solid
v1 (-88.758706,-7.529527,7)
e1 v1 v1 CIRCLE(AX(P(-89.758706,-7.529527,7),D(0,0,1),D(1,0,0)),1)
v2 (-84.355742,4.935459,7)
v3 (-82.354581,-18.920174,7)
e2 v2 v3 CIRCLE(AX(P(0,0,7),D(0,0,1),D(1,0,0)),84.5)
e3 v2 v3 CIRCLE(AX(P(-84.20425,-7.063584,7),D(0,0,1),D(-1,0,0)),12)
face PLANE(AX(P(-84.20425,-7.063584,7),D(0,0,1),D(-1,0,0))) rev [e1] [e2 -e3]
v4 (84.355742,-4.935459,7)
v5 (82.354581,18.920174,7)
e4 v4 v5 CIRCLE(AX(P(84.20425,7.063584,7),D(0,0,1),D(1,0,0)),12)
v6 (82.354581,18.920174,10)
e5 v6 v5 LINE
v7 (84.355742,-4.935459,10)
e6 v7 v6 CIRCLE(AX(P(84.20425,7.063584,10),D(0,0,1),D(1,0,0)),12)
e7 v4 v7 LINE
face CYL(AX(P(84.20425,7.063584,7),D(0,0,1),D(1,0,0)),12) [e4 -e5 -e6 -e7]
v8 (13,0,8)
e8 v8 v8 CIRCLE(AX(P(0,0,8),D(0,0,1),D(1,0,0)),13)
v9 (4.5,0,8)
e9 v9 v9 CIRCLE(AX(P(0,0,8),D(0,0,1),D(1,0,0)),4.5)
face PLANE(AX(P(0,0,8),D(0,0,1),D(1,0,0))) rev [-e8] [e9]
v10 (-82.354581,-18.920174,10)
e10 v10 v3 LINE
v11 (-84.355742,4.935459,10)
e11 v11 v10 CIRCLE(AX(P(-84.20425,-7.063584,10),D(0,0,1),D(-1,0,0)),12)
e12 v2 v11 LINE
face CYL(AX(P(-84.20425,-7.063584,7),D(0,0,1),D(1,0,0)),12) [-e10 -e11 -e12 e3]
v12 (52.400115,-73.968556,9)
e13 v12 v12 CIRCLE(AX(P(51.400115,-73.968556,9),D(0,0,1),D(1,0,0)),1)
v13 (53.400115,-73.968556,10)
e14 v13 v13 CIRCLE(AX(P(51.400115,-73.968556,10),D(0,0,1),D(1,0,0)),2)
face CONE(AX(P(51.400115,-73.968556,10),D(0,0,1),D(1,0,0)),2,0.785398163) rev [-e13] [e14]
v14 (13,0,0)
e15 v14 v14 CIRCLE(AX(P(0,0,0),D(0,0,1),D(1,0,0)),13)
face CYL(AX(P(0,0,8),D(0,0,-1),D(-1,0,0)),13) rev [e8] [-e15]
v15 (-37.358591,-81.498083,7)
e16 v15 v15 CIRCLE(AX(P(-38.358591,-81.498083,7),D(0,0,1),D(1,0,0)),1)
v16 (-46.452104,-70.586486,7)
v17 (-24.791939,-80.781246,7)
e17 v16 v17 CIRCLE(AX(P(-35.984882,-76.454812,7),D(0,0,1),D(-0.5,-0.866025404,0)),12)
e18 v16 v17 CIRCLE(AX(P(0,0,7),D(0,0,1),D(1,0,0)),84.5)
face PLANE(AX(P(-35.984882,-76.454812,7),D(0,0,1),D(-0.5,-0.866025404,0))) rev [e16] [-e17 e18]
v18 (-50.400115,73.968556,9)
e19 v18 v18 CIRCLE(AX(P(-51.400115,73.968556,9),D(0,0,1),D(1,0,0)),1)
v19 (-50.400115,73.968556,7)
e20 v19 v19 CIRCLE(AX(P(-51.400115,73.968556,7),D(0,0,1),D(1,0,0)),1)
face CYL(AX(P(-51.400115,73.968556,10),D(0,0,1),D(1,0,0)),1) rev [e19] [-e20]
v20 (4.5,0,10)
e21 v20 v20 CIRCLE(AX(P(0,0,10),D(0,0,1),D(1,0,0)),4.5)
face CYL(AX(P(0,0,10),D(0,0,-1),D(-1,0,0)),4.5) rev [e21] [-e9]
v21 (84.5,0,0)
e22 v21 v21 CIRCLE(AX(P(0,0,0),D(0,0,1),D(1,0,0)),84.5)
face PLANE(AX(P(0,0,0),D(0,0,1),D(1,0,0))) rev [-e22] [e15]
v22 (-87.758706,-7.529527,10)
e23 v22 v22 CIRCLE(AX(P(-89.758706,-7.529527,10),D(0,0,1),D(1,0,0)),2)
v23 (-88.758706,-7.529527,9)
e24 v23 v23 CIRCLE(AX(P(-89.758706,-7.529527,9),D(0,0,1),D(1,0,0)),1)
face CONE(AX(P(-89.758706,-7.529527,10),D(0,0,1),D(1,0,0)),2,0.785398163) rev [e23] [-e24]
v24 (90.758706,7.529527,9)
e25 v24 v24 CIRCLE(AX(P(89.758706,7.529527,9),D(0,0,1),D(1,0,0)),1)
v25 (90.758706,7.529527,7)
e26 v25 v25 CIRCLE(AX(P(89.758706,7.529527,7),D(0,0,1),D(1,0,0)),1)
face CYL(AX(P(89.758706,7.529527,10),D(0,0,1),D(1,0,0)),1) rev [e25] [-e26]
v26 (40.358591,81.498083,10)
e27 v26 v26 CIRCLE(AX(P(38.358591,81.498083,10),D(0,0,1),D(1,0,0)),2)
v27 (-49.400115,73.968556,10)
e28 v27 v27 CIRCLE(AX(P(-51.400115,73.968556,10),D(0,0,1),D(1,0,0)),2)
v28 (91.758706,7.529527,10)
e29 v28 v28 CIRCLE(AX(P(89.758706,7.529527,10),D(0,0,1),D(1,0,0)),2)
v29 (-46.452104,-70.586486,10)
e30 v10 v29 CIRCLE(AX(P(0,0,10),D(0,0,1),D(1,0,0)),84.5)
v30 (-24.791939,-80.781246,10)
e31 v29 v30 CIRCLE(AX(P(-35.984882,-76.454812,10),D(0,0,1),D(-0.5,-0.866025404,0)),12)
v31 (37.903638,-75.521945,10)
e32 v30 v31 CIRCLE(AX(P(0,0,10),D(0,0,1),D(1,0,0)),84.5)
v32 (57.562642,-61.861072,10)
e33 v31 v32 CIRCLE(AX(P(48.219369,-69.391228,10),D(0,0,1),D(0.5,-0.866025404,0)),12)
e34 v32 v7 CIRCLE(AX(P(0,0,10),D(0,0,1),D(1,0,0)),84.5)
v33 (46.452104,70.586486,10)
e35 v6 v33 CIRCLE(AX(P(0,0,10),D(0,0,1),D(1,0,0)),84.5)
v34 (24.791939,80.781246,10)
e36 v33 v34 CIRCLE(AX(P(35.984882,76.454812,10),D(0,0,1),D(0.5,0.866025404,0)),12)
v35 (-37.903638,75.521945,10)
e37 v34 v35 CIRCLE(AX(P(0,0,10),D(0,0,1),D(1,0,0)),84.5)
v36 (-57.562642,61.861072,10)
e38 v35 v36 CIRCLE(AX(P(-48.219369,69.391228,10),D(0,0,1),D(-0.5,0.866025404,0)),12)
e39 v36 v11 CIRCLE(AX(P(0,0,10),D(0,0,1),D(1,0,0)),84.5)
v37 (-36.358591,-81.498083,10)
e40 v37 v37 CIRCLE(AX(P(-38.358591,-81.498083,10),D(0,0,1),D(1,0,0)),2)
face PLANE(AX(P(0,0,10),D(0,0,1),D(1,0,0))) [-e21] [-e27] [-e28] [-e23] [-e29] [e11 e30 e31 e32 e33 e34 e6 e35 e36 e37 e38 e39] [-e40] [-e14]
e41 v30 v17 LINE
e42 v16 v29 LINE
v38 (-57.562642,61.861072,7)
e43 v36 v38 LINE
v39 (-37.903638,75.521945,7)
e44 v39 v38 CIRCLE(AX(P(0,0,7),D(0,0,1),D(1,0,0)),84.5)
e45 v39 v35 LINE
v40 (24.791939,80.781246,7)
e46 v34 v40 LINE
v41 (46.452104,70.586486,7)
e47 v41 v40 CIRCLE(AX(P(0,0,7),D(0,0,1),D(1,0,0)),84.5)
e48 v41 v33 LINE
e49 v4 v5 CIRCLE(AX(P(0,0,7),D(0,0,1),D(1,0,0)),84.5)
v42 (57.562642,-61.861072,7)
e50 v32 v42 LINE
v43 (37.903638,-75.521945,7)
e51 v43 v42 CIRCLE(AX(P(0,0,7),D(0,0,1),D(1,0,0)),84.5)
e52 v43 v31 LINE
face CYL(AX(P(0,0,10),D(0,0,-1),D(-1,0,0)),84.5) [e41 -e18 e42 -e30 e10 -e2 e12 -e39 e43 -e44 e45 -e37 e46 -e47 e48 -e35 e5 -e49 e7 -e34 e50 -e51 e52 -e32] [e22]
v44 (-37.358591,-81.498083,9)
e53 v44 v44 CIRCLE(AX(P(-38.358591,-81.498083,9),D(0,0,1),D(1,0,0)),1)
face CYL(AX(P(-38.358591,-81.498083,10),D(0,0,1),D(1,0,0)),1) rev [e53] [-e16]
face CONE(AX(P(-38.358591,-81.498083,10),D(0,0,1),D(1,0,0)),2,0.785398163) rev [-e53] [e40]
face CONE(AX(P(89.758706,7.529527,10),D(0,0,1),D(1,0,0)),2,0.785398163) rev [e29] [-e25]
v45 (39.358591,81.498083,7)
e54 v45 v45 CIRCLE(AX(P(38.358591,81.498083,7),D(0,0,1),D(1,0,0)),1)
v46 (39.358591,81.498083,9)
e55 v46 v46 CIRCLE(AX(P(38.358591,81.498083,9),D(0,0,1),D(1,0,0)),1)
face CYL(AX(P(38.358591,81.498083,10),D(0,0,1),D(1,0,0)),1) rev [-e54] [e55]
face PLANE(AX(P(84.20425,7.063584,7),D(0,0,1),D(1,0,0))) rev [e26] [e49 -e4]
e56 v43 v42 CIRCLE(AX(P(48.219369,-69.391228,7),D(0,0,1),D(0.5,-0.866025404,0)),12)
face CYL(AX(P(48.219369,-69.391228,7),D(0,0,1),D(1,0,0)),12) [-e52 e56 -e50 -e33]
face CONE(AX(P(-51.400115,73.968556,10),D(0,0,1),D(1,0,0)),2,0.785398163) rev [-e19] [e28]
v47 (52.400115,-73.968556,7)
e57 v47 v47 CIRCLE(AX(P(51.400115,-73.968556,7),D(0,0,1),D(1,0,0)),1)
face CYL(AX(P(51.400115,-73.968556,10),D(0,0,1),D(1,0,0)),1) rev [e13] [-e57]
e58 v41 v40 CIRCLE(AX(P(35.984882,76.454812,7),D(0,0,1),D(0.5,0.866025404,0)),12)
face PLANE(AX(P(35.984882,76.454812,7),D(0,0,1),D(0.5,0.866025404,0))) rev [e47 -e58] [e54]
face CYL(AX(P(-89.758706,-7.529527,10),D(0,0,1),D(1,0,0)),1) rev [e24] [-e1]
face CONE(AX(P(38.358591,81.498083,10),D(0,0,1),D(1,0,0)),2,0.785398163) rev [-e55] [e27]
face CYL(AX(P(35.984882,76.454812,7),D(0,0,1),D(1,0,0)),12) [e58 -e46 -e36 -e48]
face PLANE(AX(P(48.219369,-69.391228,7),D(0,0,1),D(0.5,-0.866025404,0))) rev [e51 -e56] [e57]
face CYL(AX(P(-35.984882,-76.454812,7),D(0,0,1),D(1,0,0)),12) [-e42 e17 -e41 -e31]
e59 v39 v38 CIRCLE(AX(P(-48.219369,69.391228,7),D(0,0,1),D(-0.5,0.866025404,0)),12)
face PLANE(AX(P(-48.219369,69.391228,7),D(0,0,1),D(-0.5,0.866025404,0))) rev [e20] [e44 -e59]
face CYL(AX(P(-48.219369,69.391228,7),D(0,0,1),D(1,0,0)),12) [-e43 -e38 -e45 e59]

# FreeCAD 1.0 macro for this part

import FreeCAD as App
import Part
import Sketcher
from FreeCAD import Vector
Q = App.Units.Quantity

doc = App.newDocument("Part")
body = doc.addObject("PartDesign::Body", "Body")

# Sketch on XY plane
sketch1 = doc.addObject("Sketcher::SketchObject", "Sketch")
body.addObject(sketch1)
sketch1.AttachmentSupport = (doc.XY_Plane, [""])
sketch1.MapMode = "FlatFace"
sketch1.addGeometry(Part.Circle(Vector(0, 0, 0), Vector(0, 0, 1), 84.5), False)
sketch1.addGeometry(Part.Circle(Vector(0, 0, 0), Vector(0, 0, 1), 4.5), False)
sketch1.addConstraint(Sketcher.Constraint("Coincident", 0, 3, -1, 1))
sketch1.addConstraint(Sketcher.Constraint("Coincident", 1, 3, -1, 1))
sketch1.addConstraint(Sketcher.Constraint("Diameter", 0, Q("169 mm")))
sketch1.addConstraint(Sketcher.Constraint("Diameter", 1, Q("9 mm")))
pad1 = doc.addObject("PartDesign::Pad", "Pad")
body.addObject(pad1)
pad1.Profile = sketch1
pad1.Length = 10

# Sketch on XY plane
sketch2 = doc.addObject("Sketcher::SketchObject", "Sketch001")
body.addObject(sketch2)
sketch2.AttachmentSupport = (doc.XY_Plane, [""])
sketch2.MapMode = "FlatFace"
sketch2.addGeometry(Part.Circle(Vector(0, 0, 0), Vector(0, 0, 1), 13), False)
sketch2.addConstraint(Sketcher.Constraint("Coincident", 0, 3, -1, 1))
sketch2.addConstraint(Sketcher.Constraint("Diameter", 0, Q("26 mm")))
pocket1 = doc.addObject("PartDesign::Pocket", "Pocket")
body.addObject(pocket1)
pocket1.Profile = sketch2
pocket1.Length = 8
pocket1.Reversed = True

# Sketch on XY plane
sketch3 = doc.addObject("Sketcher::SketchObject", "Sketch002")
body.addObject(sketch3)
sketch3.AttachmentSupport = (doc.XY_Plane, [""])
sketch3.MapMode = "FlatFace"
sketch3.AttachmentOffset = App.Placement(Vector(0, 0, 10), App.Rotation())
sketch3.addGeometry(Part.Circle(Vector(84, 7, 0), Vector(0, 0, 1), 12), False)
sketch3.addConstraint(Sketcher.Constraint("Diameter", 0, Q("24 mm")))
sketch3.addConstraint(Sketcher.Constraint("DistanceX", -1, 1, 0, 3, Q("84.20425 mm")))
sketch3.addConstraint(Sketcher.Constraint("DistanceY", -1, 1, 0, 3, Q("7.063584 mm")))
pad2 = doc.addObject("PartDesign::Pad", "Pad001")
body.addObject(pad2)
pad2.Profile = sketch3
pad2.Length = 3
pad2.Reversed = True
doc.recompute()

polarpattern = doc.addObject("PartDesign::PolarPattern", "PolarPattern")
body.addObject(polarpattern)
polarpattern.Originals = [pad2]
polarpattern.Axis = (doc.Z_Axis, [""])
polarpattern.Angle = 360
polarpattern.Occurrences = 6
body.Tip = polarpattern

# Sketch on XY plane
sketch4 = doc.addObject("Sketcher::SketchObject", "Sketch003")
body.addObject(sketch4)
sketch4.AttachmentSupport = (doc.XY_Plane, [""])
sketch4.MapMode = "FlatFace"
sketch4.AttachmentOffset = App.Placement(Vector(0, 0, 10), App.Rotation())
sketch4.addGeometry(Part.Circle(Vector(89.8, 7.5, 0), Vector(0, 0, 1), 1), False)
sketch4.addConstraint(Sketcher.Constraint("Diameter", 0, Q("2 mm")))
sketch4.addConstraint(Sketcher.Constraint("DistanceX", -1, 1, 0, 3, Q("89.758706 mm")))
sketch4.addConstraint(Sketcher.Constraint("DistanceY", -1, 1, 0, 3, Q("7.529527 mm")))
doc.recompute()
hole = doc.addObject("PartDesign::Hole", "Hole")
body.addObject(hole)
hole.Profile = sketch4
hole.ThreadType = "None"
hole.Diameter = 2
hole.DepthType = "ThroughAll"
hole.HoleCutType = "Countersink"
hole.HoleCutDiameter = 4
hole.HoleCutCountersinkAngle = 90
doc.recompute()

polarpattern2 = doc.addObject("PartDesign::PolarPattern", "PolarPattern001")
body.addObject(polarpattern2)
polarpattern2.Originals = [hole]
polarpattern2.Axis = (doc.Z_Axis, [""])
polarpattern2.Angle = 360
polarpattern2.Occurrences = 6
body.Tip = polarpattern2

doc.recompute()
